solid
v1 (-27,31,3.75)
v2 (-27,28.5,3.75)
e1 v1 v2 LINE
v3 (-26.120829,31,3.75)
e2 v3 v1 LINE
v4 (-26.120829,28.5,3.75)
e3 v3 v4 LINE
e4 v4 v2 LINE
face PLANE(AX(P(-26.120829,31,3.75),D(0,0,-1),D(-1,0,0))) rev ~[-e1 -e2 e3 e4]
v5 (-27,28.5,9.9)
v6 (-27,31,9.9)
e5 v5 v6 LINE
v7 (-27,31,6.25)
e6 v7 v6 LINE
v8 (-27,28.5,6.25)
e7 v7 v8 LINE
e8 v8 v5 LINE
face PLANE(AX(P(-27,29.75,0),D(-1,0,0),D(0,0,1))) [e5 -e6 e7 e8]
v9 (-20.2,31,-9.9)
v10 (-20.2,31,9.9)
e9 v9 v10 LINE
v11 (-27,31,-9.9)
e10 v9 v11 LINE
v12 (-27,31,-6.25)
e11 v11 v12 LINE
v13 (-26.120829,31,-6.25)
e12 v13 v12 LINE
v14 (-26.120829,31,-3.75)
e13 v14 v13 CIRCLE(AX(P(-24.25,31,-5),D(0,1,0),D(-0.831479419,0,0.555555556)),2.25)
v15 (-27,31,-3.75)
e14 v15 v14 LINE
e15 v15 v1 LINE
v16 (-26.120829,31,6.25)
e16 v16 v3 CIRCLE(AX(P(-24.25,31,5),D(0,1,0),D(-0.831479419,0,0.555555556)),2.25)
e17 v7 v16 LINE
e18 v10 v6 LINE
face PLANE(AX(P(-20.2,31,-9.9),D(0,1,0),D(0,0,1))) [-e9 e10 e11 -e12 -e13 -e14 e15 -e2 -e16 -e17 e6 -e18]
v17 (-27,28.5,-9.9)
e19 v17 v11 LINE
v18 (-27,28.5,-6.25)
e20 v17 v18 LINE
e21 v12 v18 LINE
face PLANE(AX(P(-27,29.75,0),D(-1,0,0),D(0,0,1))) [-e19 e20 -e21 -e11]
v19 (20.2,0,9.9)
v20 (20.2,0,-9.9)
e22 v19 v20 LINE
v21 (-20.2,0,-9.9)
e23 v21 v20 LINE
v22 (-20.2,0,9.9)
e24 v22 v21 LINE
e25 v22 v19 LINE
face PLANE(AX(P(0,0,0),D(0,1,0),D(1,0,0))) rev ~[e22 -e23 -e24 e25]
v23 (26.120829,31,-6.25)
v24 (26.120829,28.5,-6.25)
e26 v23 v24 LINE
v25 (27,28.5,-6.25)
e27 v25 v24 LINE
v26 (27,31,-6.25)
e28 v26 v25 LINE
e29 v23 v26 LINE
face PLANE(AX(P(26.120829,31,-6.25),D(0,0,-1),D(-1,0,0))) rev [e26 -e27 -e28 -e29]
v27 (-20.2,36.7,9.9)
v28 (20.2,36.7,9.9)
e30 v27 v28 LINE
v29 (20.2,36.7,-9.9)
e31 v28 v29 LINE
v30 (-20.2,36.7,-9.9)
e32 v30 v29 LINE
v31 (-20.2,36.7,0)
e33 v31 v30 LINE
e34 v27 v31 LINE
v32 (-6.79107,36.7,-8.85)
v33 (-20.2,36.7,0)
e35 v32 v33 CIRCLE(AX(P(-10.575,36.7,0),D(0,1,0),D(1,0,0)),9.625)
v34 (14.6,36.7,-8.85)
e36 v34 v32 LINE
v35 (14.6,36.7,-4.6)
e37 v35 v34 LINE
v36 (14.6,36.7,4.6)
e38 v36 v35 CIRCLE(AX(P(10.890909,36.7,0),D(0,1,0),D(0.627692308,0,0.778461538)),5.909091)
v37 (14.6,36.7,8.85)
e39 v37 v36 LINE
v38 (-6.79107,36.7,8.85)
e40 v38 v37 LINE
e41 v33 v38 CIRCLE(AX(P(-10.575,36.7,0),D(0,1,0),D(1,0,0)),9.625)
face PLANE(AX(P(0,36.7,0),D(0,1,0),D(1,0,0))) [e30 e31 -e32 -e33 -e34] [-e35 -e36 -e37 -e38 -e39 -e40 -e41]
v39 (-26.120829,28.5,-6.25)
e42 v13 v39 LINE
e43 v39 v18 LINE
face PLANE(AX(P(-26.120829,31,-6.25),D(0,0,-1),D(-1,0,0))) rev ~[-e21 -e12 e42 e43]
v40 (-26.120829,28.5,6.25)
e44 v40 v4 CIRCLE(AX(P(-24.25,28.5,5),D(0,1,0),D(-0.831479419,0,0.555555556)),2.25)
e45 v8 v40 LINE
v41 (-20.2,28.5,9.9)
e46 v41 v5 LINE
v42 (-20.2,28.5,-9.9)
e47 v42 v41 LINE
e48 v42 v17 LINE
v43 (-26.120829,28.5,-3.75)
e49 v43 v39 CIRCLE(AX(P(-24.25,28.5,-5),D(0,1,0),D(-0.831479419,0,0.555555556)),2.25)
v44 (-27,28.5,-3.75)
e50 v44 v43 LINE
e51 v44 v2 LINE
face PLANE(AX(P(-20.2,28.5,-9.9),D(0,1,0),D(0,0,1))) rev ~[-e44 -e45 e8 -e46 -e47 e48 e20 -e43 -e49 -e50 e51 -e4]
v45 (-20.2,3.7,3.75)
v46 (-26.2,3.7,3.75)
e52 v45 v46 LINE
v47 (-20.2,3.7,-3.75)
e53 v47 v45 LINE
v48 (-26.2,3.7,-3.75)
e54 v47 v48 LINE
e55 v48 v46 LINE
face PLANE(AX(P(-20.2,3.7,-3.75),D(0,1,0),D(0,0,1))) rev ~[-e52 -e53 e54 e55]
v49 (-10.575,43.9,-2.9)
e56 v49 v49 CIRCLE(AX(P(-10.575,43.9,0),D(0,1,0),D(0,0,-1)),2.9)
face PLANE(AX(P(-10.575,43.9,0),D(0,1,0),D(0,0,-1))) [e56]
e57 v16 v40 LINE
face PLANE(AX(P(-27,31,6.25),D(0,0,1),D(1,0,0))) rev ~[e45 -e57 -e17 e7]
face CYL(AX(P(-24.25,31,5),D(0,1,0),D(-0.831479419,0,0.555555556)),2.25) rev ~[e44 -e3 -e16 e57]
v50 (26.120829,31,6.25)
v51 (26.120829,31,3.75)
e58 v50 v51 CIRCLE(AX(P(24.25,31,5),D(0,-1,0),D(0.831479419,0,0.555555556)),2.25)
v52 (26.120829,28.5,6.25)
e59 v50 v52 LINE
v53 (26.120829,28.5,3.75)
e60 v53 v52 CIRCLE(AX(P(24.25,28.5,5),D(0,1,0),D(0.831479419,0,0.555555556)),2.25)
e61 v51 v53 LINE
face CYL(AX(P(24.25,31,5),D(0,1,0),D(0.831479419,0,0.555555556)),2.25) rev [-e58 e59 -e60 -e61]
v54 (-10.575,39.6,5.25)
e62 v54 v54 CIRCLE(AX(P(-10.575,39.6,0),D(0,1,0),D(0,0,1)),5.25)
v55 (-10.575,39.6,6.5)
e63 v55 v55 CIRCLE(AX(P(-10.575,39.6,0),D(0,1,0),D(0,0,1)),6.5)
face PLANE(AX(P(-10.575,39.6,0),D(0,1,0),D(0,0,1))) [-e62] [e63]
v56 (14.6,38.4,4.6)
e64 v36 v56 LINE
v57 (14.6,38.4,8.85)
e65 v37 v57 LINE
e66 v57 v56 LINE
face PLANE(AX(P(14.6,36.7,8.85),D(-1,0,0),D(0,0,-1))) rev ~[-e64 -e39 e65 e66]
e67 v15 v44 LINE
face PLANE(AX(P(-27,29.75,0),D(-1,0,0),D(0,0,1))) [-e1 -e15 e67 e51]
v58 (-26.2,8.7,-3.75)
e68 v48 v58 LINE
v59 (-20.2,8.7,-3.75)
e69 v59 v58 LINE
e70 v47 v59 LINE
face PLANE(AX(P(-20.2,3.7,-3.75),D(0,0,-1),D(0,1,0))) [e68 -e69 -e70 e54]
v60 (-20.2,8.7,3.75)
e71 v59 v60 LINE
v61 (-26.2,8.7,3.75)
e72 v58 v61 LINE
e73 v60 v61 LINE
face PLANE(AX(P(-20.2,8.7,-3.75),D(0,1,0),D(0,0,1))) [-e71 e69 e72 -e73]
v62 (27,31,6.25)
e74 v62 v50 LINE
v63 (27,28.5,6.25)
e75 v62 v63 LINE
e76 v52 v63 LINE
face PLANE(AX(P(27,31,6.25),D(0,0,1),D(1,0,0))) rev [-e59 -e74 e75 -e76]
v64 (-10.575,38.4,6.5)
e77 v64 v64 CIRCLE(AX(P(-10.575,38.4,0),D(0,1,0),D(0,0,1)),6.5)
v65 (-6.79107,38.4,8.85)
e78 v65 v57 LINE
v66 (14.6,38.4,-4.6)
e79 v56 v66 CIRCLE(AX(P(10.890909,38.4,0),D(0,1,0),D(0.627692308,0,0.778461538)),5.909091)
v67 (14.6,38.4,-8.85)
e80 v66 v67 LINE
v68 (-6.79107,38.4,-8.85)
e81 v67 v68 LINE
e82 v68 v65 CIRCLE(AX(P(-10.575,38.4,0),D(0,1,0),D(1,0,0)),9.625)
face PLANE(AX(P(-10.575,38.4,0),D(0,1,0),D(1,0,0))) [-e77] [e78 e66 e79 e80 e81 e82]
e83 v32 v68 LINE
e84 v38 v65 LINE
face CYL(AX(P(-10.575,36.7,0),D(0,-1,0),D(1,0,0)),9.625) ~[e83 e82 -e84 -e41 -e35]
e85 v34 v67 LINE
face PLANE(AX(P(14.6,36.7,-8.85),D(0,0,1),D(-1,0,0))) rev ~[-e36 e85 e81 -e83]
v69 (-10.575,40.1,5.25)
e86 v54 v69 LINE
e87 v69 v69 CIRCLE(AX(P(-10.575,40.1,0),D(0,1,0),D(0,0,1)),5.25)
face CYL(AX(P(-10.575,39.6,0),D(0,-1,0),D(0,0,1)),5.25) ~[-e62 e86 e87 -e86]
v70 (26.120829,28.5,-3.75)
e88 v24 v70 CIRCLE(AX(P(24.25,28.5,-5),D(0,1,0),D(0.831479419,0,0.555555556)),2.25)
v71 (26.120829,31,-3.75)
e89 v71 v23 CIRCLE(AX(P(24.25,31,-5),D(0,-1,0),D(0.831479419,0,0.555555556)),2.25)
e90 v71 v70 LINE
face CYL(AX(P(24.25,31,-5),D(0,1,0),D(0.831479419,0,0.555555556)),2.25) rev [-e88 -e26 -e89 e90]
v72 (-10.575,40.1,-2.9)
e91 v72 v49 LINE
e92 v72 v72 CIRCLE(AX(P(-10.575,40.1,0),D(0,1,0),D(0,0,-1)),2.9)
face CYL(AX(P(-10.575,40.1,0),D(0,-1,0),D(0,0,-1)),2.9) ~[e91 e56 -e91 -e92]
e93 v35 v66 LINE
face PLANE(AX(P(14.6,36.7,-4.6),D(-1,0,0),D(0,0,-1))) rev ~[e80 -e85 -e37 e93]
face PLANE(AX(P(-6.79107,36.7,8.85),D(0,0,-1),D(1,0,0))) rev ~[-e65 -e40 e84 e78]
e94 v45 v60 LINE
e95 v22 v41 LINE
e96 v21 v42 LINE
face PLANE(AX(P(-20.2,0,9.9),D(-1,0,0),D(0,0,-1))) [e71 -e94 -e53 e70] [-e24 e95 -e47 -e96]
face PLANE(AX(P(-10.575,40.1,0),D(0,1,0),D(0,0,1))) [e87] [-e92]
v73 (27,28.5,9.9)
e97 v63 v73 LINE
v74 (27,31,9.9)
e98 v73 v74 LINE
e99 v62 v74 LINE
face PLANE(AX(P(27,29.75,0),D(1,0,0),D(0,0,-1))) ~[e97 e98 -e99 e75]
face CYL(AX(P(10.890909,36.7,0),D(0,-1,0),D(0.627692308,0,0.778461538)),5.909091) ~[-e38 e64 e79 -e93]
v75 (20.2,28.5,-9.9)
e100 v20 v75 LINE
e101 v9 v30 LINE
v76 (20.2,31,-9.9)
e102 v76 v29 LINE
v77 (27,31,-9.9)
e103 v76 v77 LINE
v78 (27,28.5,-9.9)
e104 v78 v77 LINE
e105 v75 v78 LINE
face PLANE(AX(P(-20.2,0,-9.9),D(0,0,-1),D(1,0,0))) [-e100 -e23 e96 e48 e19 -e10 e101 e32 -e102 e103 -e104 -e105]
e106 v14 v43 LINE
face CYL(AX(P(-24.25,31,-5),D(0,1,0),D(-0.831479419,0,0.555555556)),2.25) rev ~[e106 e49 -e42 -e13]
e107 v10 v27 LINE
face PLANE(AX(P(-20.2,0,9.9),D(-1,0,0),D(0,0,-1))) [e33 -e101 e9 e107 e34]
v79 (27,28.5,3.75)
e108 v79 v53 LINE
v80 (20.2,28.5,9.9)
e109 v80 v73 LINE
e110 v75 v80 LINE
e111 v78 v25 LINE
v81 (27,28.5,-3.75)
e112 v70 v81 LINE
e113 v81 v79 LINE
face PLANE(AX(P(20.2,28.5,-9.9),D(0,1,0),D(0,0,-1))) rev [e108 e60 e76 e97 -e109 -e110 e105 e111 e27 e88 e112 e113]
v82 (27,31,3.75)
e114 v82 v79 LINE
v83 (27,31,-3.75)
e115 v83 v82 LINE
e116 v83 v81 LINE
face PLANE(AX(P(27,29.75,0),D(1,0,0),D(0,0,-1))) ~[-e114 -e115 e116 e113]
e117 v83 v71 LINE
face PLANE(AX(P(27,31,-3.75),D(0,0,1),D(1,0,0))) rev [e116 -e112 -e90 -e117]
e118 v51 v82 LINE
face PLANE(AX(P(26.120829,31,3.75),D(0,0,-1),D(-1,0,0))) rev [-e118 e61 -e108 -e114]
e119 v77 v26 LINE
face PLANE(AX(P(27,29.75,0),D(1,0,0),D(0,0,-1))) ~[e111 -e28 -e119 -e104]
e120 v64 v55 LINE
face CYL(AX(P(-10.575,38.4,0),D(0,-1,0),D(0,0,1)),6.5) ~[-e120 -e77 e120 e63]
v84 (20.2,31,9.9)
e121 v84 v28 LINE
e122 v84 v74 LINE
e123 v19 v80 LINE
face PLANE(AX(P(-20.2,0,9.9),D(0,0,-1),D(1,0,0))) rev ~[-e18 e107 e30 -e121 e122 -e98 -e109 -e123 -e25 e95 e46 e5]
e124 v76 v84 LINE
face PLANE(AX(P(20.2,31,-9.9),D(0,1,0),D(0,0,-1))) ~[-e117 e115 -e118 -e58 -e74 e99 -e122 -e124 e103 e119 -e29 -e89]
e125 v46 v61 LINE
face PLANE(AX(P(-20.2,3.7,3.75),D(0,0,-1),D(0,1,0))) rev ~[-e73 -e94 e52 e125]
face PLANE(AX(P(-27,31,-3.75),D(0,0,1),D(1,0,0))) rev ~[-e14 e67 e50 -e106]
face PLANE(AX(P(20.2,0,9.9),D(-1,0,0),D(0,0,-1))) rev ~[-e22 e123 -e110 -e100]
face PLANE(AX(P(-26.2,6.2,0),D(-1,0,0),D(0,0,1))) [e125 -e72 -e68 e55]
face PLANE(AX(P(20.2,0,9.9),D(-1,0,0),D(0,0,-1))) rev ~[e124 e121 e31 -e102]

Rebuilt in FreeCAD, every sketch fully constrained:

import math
import FreeCAD as App
import Part
import Sketcher

V = App.Vector

doc = App.newDocument("Part")
body = doc.addObject("PartDesign::Body", "Body")

sketch1 = doc.addObject("Sketcher::SketchObject", "Sketch")
body.addObject(sketch1)
sketch1.AttachmentSupport = (doc.XZ_Plane, [""])
sketch1.MapMode = "FlatFace"
sketch1.addGeometry(Part.LineSegment(V(-20, -10, 0), V(-20, 10, 0)), False)
sketch1.addGeometry(Part.LineSegment(V(-20, 10, 0), V(20, 10, 0)), False)
sketch1.addGeometry(Part.LineSegment(V(20, 10, 0), V(20, -10, 0)), False)
sketch1.addGeometry(Part.LineSegment(V(20, -10, 0), V(-20, -10, 0)), False)
sketch1.addConstraint(Sketcher.Constraint("Coincident", 0, 2, 1, 1))
sketch1.addConstraint(Sketcher.Constraint("Coincident", 1, 2, 2, 1))
sketch1.addConstraint(Sketcher.Constraint("Coincident", 2, 2, 3, 1))
sketch1.addConstraint(Sketcher.Constraint("Coincident", 3, 2, 0, 1))
sketch1.addConstraint(Sketcher.Constraint("Vertical", 0))
sketch1.addConstraint(Sketcher.Constraint("Horizontal", 1))
sketch1.addConstraint(Sketcher.Constraint("Vertical", 2))
sketch1.addConstraint(Sketcher.Constraint("Horizontal", 3))
sketch1.addConstraint(Sketcher.Constraint("Symmetric", 0, 2, 2, 2, -1, 1))
sketch1.addConstraint(Sketcher.Constraint("DistanceX", 1, 1, 1, 2, 40.4))
sketch1.addConstraint(Sketcher.Constraint("DistanceY", 0, 1, 0, 2, 19.8))
pad1 = doc.addObject("PartDesign::Pad", "Pad")
body.addObject(pad1)
pad1.Profile = sketch1
pad1.Length = 36.7
pad1.Reversed = True

sketch2 = doc.addObject("Sketcher::SketchObject", "Sketch001")
body.addObject(sketch2)
sketch2.AttachmentSupport = (doc.XZ_Plane, [""])
sketch2.MapMode = "FlatFace"
sketch2.AttachmentOffset = App.Placement(V(0, 0, -36.7), App.Rotation())
sketch2.addGeometry(Part.ArcOfCircle(Part.Circle(V(-10.6, 0, 0), V(0, 0, 1), 9.6), math.radians(67), math.radians(293)), False)
sketch2.addGeometry(Part.LineSegment(V(-6.8, 8.8, 0), V(14.6, 8.8, 0)), False)
sketch2.addGeometry(Part.LineSegment(V(14.6, 8.8, 0), V(14.6, 4.6, 0)), False)
sketch2.addGeometry(Part.ArcOfCircle(Part.Circle(V(10.9, 0, 0), V(0, 0, 1), 5.9), math.radians(-51), math.radians(51)), False)
sketch2.addGeometry(Part.LineSegment(V(14.6, -4.6, 0), V(14.6, -8.8, 0)), False)
sketch2.addGeometry(Part.LineSegment(V(14.6, -8.8, 0), V(-6.8, -8.8, 0)), False)
sketch2.addConstraint(Sketcher.Constraint("Coincident", 0, 1, 1, 1))
sketch2.addConstraint(Sketcher.Constraint("Coincident", 1, 2, 2, 1))
sketch2.addConstraint(Sketcher.Constraint("Coincident", 2, 2, 3, 2))
sketch2.addConstraint(Sketcher.Constraint("Coincident", 3, 1, 4, 1))
sketch2.addConstraint(Sketcher.Constraint("Coincident", 4, 2, 5, 1))
sketch2.addConstraint(Sketcher.Constraint("Coincident", 5, 2, 0, 2))
sketch2.addConstraint(Sketcher.Constraint("Horizontal", 1))
sketch2.addConstraint(Sketcher.Constraint("Vertical", 2))
sketch2.addConstraint(Sketcher.Constraint("Vertical", 4))
sketch2.addConstraint(Sketcher.Constraint("Horizontal", 5))
sketch2.addConstraint(Sketcher.Constraint("Symmetric", 2, 2, 3, 1, -1))
sketch2.addConstraint(Sketcher.Constraint("Symmetric", 0, 1, 5, 2, -1))
sketch2.addConstraint(Sketcher.Constraint("Radius", 0, 9.625))
sketch2.addConstraint(Sketcher.Constraint("DistanceY", 2, 2, 2, 1, 4.25))
sketch2.addConstraint(Sketcher.Constraint("DistanceX", -1, 1, 1, 2, 14.6))
sketch2.addConstraint(Sketcher.Constraint("DistanceY", -1, 1, 2, 2, 4.6))
sketch2.addConstraint(Sketcher.Constraint("Radius", 3, 5.909091))
sketch2.addConstraint(Sketcher.Constraint("DistanceX", 0, 3, -1, 1, 10.575))
pad2 = doc.addObject("PartDesign::Pad", "Pad001")
body.addObject(pad2)
pad2.Profile = sketch2
pad2.Length = 1.7
pad2.Reversed = True

sketch3 = doc.addObject("Sketcher::SketchObject", "Sketch002")
body.addObject(sketch3)
sketch3.AttachmentSupport = (doc.XZ_Plane, [""])
sketch3.MapMode = "FlatFace"
sketch3.AttachmentOffset = App.Placement(V(0, 0, -38.4), App.Rotation())
sketch3.addGeometry(Part.Circle(V(-11, 0, 0), V(0, 0, 1), 6), False)
sketch3.addConstraint(Sketcher.Constraint("PointOnObject", 0, 3, -1))
sketch3.addConstraint(Sketcher.Constraint("Diameter", 0, 13.0))
sketch3.addConstraint(Sketcher.Constraint("DistanceX", 0, 3, -1, 1, 10.575))
pad3 = doc.addObject("PartDesign::Pad", "Pad002")
body.addObject(pad3)
pad3.Profile = sketch3
pad3.Length = 1.2
pad3.Reversed = True

sketch4 = doc.addObject("Sketcher::SketchObject", "Sketch003")
body.addObject(sketch4)
sketch4.AttachmentSupport = (doc.XZ_Plane, [""])
sketch4.MapMode = "FlatFace"
sketch4.AttachmentOffset = App.Placement(V(0, 0, -39.6), App.Rotation())
sketch4.addGeometry(Part.Circle(V(-11, 0, 0), V(0, 0, 1), 5), False)
sketch4.addConstraint(Sketcher.Constraint("PointOnObject", 0, 3, -1))
sketch4.addConstraint(Sketcher.Constraint("Diameter", 0, 10.5))
sketch4.addConstraint(Sketcher.Constraint("DistanceX", 0, 3, -1, 1, 10.575))
pad4 = doc.addObject("PartDesign::Pad", "Pad003")
body.addObject(pad4)
pad4.Profile = sketch4
pad4.Length = 0.5
pad4.Reversed = True

sketch5 = doc.addObject("Sketcher::SketchObject", "Sketch004")
body.addObject(sketch5)
sketch5.AttachmentSupport = (doc.XZ_Plane, [""])
sketch5.MapMode = "FlatFace"
sketch5.AttachmentOffset = App.Placement(V(0, 0, -40.1), App.Rotation())
sketch5.addGeometry(Part.Circle(V(-10.6, 0, 0), V(0, 0, 1), 2.9), False)
sketch5.addConstraint(Sketcher.Constraint("PointOnObject", 0, 3, -1))
sketch5.addConstraint(Sketcher.Constraint("Diameter", 0, 5.8))
sketch5.addConstraint(Sketcher.Constraint("DistanceX", 0, 3, -1, 1, 10.575))
pad5 = doc.addObject("PartDesign::Pad", "Pad004")
body.addObject(pad5)
pad5.Profile = sketch5
pad5.Length = 3.8
pad5.Reversed = True

sketch6 = doc.addObject("Sketcher::SketchObject", "Sketch005")
body.addObject(sketch6)
sketch6.AttachmentSupport = (doc.YZ_Plane, [""])
sketch6.MapMode = "FlatFace"
sketch6.AttachmentOffset = App.Placement(V(0, 0, -20.2), App.Rotation())
sketch6.addGeometry(Part.LineSegment(V(31, -9.9, 0), V(28.5, -9.9, 0)), False)
sketch6.addGeometry(Part.LineSegment(V(28.5, -9.9, 0), V(28.5, 9.9, 0)), False)
sketch6.addGeometry(Part.LineSegment(V(28.5, 9.9, 0), V(31, 9.9, 0)), False)
sketch6.addGeometry(Part.LineSegment(V(31, 9.9, 0), V(31, -9.9, 0)), False)
sketch6.addConstraint(Sketcher.Constraint("Coincident", 0, 2, 1, 1))
sketch6.addConstraint(Sketcher.Constraint("Coincident", 1, 2, 2, 1))
sketch6.addConstraint(Sketcher.Constraint("Coincident", 2, 2, 3, 1))
sketch6.addConstraint(Sketcher.Constraint("Coincident", 3, 2, 0, 1))
sketch6.addConstraint(Sketcher.Constraint("Horizontal", 0))
sketch6.addConstraint(Sketcher.Constraint("Vertical", 1))
sketch6.addConstraint(Sketcher.Constraint("Horizontal", 2))
sketch6.addConstraint(Sketcher.Constraint("Vertical", 3))
sketch6.addConstraint(Sketcher.Constraint("DistanceX", 0, 2, 0, 1, 2.5))
sketch6.addConstraint(Sketcher.Constraint("DistanceY", 1, 1, 1, 2, 19.8))
sketch6.addConstraint(Sketcher.Constraint("DistanceX", -1, 1, 2, 2, 31.0))
sketch6.addConstraint(Sketcher.Constraint("DistanceY", 0, 2, -1, 1, 9.9))
pad6 = doc.addObject("PartDesign::Pad", "Pad005")
body.addObject(pad6)
pad6.Profile = sketch6
pad6.Length = 6.8
pad6.Reversed = True

sketch7 = doc.addObject("Sketcher::SketchObject", "Sketch006")
body.addObject(sketch7)
sketch7.AttachmentSupport = (doc.XZ_Plane, [""])
sketch7.MapMode = "FlatFace"
sketch7.AttachmentOffset = App.Placement(V(0, 0, -31), App.Rotation())
sketch7.addGeometry(Part.LineSegment(V(-26.1, -6.2, 0), V(-27, -6.2, 0)), False)
sketch7.addGeometry(Part.LineSegment(V(-27, -6.2, 0), V(-27, -3.8, 0)), False)
sketch7.addGeometry(Part.LineSegment(V(-27, -3.8, 0), V(-26.1, -3.8, 0)), False)
sketch7.addGeometry(Part.ArcOfCircle(Part.Circle(V(-24.2, -5, 0), V(0, 0, 1), 2.2), math.radians(-146), math.radians(146)), False)
sketch7.addGeometry(Part.LineSegment(V(-26.1, 3.8, 0), V(-27, 3.8, 0)), False)
sketch7.addGeometry(Part.LineSegment(V(-27, 3.8, 0), V(-27, 6.2, 0)), False)
sketch7.addGeometry(Part.LineSegment(V(-27, 6.2, 0), V(-26.1, 6.2, 0)), False)
sketch7.addGeometry(Part.ArcOfCircle(Part.Circle(V(-24.2, 5, 0), V(0, 0, 1), 2.2), math.radians(-146), math.radians(146)), False)
sketch7.addConstraint(Sketcher.Constraint("Coincident", 0, 2, 1, 1))
sketch7.addConstraint(Sketcher.Constraint("Coincident", 1, 2, 2, 1))
sketch7.addConstraint(Sketcher.Constraint("Coincident", 2, 2, 3, 2))
sketch7.addConstraint(Sketcher.Constraint("Coincident", 3, 1, 0, 1))
sketch7.addConstraint(Sketcher.Constraint("Coincident", 4, 2, 5, 1))
sketch7.addConstraint(Sketcher.Constraint("Coincident", 5, 2, 6, 1))
sketch7.addConstraint(Sketcher.Constraint("Coincident", 6, 2, 7, 2))
sketch7.addConstraint(Sketcher.Constraint("Coincident", 7, 1, 4, 1))
sketch7.addConstraint(Sketcher.Constraint("Horizontal", 0))
sketch7.addConstraint(Sketcher.Constraint("Vertical", 1))
sketch7.addConstraint(Sketcher.Constraint("Horizontal", 2))
sketch7.addConstraint(Sketcher.Constraint("Horizontal", 4))
sketch7.addConstraint(Sketcher.Constraint("Vertical", 5))
sketch7.addConstraint(Sketcher.Constraint("Horizontal", 6))
sketch7.addConstraint(Sketcher.Constraint("Equal", 3, 7))
sketch7.addConstraint(Sketcher.Constraint("Symmetric", 3, 3, 7, 3, -1))
sketch7.addConstraint(Sketcher.Constraint("Symmetric", 1, 2, 4, 2, -1))
sketch7.addConstraint(Sketcher.Constraint("Vertical", 2, 2, 3, 1))
sketch7.addConstraint(Sketcher.Constraint("Vertical", 3, 1, 6, 2))
sketch7.addConstraint(Sketcher.Constraint("Radius", 3, 2.25))
sketch7.addConstraint(Sketcher.Constraint("DistanceY", 1, 1, 1, 2, 2.5))
sketch7.addConstraint(Sketcher.Constraint("DistanceY", 3, 3, -1, 1, 5.0))
sketch7.addConstraint(Sketcher.Constraint("DistanceX", 0, 2, -1, 1, 27.0))
sketch7.addConstraint(Sketcher.Constraint("DistanceX", 3, 3, -1, 1, 24.25))
pocket1 = doc.addObject("PartDesign::Pocket", "Pocket")
body.addObject(pocket1)
pocket1.Profile = sketch7
pocket1.Length = 6.8
pocket1.Reversed = True
doc.recompute()

mirrored = doc.addObject("PartDesign::Mirrored", "Mirrored")
body.addObject(mirrored)
mirrored.Originals = [pad6, pocket1]
mirrored.MirrorPlane = (doc.YZ_Plane, [""])
body.Tip = mirrored

sketch8 = doc.addObject("Sketcher::SketchObject", "Sketch007")
body.addObject(sketch8)
sketch8.AttachmentSupport = (doc.YZ_Plane, [""])
sketch8.MapMode = "FlatFace"
sketch8.AttachmentOffset = App.Placement(V(0, 0, -20.2), App.Rotation())
sketch8.addGeometry(Part.LineSegment(V(8.7, -3.8, 0), V(3.7, -3.8, 0)), False)
sketch8.addGeometry(Part.LineSegment(V(3.7, -3.8, 0), V(3.7, 3.8, 0)), False)
sketch8.addGeometry(Part.LineSegment(V(3.7, 3.8, 0), V(8.7, 3.8, 0)), False)
sketch8.addGeometry(Part.LineSegment(V(8.7, 3.8, 0), V(8.7, -3.8, 0)), False)
sketch8.addConstraint(Sketcher.Constraint("Coincident", 0, 2, 1, 1))
sketch8.addConstraint(Sketcher.Constraint("Coincident", 1, 2, 2, 1))
sketch8.addConstraint(Sketcher.Constraint("Coincident", 2, 2, 3, 1))
sketch8.addConstraint(Sketcher.Constraint("Coincident", 3, 2, 0, 1))
sketch8.addConstraint(Sketcher.Constraint("Horizontal", 0))
sketch8.addConstraint(Sketcher.Constraint("Vertical", 1))
sketch8.addConstraint(Sketcher.Constraint("Horizontal", 2))
sketch8.addConstraint(Sketcher.Constraint("Vertical", 3))
sketch8.addConstraint(Sketcher.Constraint("DistanceX", 0, 2, 0, 1, 5.0))
sketch8.addConstraint(Sketcher.Constraint("DistanceY", 1, 1, 1, 2, 7.5))
sketch8.addConstraint(Sketcher.Constraint("DistanceX", -1, 1, 0, 2, 3.7))
sketch8.addConstraint(Sketcher.Constraint("DistanceY", 0, 2, -1, 1, 3.75))
pad7 = doc.addObject("PartDesign::Pad", "Pad006")
body.addObject(pad7)
pad7.Profile = sketch8
pad7.Length = 6
pad7.Reversed = True

doc.recompute()
